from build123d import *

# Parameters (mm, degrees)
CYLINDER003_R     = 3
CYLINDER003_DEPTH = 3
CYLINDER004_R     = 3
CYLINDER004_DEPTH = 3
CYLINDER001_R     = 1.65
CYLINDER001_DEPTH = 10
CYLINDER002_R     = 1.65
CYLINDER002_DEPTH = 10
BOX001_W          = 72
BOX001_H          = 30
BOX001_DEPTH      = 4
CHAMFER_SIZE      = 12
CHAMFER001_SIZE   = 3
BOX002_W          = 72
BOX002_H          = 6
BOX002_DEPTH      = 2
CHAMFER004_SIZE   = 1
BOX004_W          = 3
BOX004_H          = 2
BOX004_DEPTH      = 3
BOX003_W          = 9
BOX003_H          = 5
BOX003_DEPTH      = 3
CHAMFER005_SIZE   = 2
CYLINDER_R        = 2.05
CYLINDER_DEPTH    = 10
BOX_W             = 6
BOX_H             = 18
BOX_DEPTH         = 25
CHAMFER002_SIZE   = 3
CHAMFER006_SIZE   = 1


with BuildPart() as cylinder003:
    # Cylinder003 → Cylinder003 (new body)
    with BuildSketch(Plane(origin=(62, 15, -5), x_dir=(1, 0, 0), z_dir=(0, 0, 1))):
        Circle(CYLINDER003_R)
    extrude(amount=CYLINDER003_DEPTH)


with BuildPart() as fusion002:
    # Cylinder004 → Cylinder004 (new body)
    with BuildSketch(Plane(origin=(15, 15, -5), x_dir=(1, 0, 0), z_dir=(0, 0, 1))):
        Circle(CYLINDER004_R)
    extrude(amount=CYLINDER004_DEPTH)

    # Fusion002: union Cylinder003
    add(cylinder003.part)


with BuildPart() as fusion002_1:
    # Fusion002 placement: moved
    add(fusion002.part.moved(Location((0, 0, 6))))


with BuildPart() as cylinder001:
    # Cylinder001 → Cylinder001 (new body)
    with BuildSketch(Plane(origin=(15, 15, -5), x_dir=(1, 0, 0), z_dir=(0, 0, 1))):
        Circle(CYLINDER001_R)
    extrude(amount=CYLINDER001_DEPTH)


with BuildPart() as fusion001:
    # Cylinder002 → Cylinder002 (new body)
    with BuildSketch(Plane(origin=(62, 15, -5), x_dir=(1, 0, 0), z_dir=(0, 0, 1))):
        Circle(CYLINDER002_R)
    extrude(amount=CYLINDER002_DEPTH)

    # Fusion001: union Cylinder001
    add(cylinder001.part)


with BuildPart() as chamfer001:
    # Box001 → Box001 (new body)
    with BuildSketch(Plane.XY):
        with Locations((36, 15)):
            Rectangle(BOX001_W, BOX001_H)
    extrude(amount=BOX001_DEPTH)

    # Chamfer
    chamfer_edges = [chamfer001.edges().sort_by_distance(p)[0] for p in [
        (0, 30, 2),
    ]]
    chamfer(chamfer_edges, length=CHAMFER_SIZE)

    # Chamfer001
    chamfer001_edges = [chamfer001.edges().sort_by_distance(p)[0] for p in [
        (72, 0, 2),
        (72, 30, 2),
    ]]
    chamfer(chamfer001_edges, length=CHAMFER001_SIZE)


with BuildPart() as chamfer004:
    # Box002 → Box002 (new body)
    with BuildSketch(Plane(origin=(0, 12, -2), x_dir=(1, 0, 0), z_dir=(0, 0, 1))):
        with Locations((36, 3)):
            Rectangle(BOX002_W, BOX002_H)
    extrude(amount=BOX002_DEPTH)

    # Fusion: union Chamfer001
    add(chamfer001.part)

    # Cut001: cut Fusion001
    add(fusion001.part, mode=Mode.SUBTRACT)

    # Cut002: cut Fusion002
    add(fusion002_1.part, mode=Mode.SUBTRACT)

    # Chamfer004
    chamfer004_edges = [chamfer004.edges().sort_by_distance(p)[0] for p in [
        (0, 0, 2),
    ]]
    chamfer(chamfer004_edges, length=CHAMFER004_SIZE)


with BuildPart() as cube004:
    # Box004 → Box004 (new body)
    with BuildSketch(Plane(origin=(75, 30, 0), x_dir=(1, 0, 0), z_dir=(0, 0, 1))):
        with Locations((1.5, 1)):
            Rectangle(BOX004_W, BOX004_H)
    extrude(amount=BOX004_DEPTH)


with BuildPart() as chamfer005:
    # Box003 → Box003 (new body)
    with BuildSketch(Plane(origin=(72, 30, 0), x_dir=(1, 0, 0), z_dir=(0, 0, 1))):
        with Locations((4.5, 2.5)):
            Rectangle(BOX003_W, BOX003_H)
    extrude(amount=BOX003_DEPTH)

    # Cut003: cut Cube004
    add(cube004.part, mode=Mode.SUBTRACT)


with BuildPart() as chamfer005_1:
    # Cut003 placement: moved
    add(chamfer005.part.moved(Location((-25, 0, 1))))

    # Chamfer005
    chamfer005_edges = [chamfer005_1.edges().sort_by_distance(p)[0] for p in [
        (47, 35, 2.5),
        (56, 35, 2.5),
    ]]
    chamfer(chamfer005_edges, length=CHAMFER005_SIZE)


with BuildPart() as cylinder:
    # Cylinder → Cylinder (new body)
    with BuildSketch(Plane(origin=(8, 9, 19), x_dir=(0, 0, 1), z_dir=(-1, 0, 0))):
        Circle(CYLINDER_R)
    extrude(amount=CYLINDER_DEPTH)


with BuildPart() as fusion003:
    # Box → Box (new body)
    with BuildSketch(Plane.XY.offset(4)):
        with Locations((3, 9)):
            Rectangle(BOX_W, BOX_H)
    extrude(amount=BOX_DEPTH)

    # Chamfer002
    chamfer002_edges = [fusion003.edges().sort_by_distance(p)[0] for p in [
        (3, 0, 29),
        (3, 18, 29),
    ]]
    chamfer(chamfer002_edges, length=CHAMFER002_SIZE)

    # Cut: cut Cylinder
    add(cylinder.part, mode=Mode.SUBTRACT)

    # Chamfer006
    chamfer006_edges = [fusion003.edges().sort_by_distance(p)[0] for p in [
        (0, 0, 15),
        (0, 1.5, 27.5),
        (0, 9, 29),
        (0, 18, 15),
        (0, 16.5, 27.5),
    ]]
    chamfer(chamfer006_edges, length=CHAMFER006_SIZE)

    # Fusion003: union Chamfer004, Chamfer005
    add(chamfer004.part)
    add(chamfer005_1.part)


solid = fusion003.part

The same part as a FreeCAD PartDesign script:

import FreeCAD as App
import Part
import Sketcher

V = App.Vector


def edges_at(feature, points):
    """Names of the edges that pass closest to the given points."""
    edges = feature.Shape.Edges
    near = lambda p: min(range(len(edges)), key=lambda i: edges[i].distToShape(Part.Vertex(*p))[0])
    return sorted({f"Edge{near(p) + 1}" for p in points})


def add_polygon(sketch, points):
    """Adds a closed chain of lines whose ends are joined by coincident constraints."""
    first, n = sketch.GeometryCount, len(points)
    for a, b in zip(points, points[1:] + points[:1]):
        sketch.addGeometry(Part.LineSegment(App.Vector(*a, 0), App.Vector(*b, 0)), False)
    for i in range(n):
        sketch.addConstraint(Sketcher.Constraint("Coincident", first + i, 2, first + (i + 1) % n, 1))

doc = App.newDocument("Part")
body = doc.addObject("PartDesign::Body", "Body")

sketch1 = body.newObject("Sketcher::SketchObject", "Sketch")
sketch1.AttachmentSupport = (doc.getObject("XY_Plane"), [""])
sketch1.MapMode = "FlatFace"
sketch1.AttachmentOffset = App.Placement(V(0, 0, -5), App.Rotation())
sketch1.addGeometry(Part.Circle(V(62, 15, 0), V(0, 0, 1), 3), False)
sketch1.addConstraint([
    Sketcher.Constraint("Diameter", 0, 6.0),
    Sketcher.Constraint("DistanceX", -1, 1, 0, 3, 62.0),
    Sketcher.Constraint("DistanceY", -1, 1, 0, 3, 15.0),
])
pad1 = body.newObject("PartDesign::Pad", "Pad")
pad1.Profile = sketch1
pad1.Length = 3
body2 = doc.addObject("PartDesign::Body", "Body001")
body2.AllowCompound = True

sketch2 = body2.newObject("Sketcher::SketchObject", "Sketch001")
sketch2.AttachmentSupport = (doc.getObject("XY_Plane001"), [""])
sketch2.MapMode = "FlatFace"
sketch2.AttachmentOffset = App.Placement(V(0, 0, -5), App.Rotation())
sketch2.addGeometry(Part.Circle(V(15, 15, 0), V(0, 0, 1), 3), False)
sketch2.addConstraint([
    Sketcher.Constraint("Diameter", 0, 6.0),
    Sketcher.Constraint("DistanceX", -1, 1, 0, 3, 15.0),
    Sketcher.Constraint("DistanceY", -1, 1, 0, 3, 15.0),
])
pad2 = body2.newObject("PartDesign::Pad", "Pad001")
pad2.Profile = sketch2
pad2.Length = 3
doc.recompute()

boolean = body2.newObject("PartDesign::Boolean", "Boolean")
boolean.Type = "Fuse"
boolean.addObjects([body])
body3 = doc.addObject("PartDesign::Body", "Body002")
body3.AllowCompound = True
doc.recompute()

body2.Placement = App.Placement(V(0, 0, 6), App.Rotation(V(0, 0, 1), 0))
boolean2 = body3.newObject("PartDesign::Boolean", "Boolean001")
boolean2.Type = "Fuse"
boolean2.addObjects([body2])
body4 = doc.addObject("PartDesign::Body", "Body003")

sketch3 = body4.newObject("Sketcher::SketchObject", "Sketch002")
sketch3.AttachmentSupport = (doc.getObject("XY_Plane003"), [""])
sketch3.MapMode = "FlatFace"
sketch3.AttachmentOffset = App.Placement(V(0, 0, -5), App.Rotation())
sketch3.addGeometry(Part.Circle(V(15, 15, 0), V(0, 0, 1), 1.6), False)
sketch3.addConstraint([
    Sketcher.Constraint("Diameter", 0, 3.3),
    Sketcher.Constraint("DistanceX", -1, 1, 0, 3, 15.0),
    Sketcher.Constraint("DistanceY", -1, 1, 0, 3, 15.0),
])
pad3 = body4.newObject("PartDesign::Pad", "Pad002")
pad3.Profile = sketch3
pad3.Length = 10
body5 = doc.addObject("PartDesign::Body", "Body004")
body5.AllowCompound = True

sketch4 = body5.newObject("Sketcher::SketchObject", "Sketch003")
sketch4.AttachmentSupport = (doc.getObject("XY_Plane004"), [""])
sketch4.MapMode = "FlatFace"
sketch4.AttachmentOffset = App.Placement(V(0, 0, -5), App.Rotation())
sketch4.addGeometry(Part.Circle(V(62, 15, 0), V(0, 0, 1), 1.6), False)
sketch4.addConstraint([
    Sketcher.Constraint("Diameter", 0, 3.3),
    Sketcher.Constraint("DistanceX", -1, 1, 0, 3, 62.0),
    Sketcher.Constraint("DistanceY", -1, 1, 0, 3, 15.0),
])
pad4 = body5.newObject("PartDesign::Pad", "Pad003")
pad4.Profile = sketch4
pad4.Length = 10
doc.recompute()

boolean3 = body5.newObject("PartDesign::Boolean", "Boolean002")
boolean3.Type = "Fuse"
boolean3.addObjects([body4])
body6 = doc.addObject("PartDesign::Body", "Body005")

sketch5 = body6.newObject("Sketcher::SketchObject", "Sketch004")
sketch5.AttachmentSupport = (doc.getObject("XY_Plane005"), [""])
sketch5.MapMode = "FlatFace"
add_polygon(sketch5, [(0, 30), (0, 0), (72, 0), (72, 30)])
sketch5.addConstraint([
    Sketcher.Constraint("Vertical", 0),
    Sketcher.Constraint("Horizontal", 1),
    Sketcher.Constraint("Vertical", 2),
    Sketcher.Constraint("Horizontal", 3),
    Sketcher.Constraint("Coincident", 0, 2, -1, 1),
    Sketcher.Constraint("DistanceX", 1, 1, 1, 2, 72.0),
    Sketcher.Constraint("DistanceY", 0, 2, 0, 1, 30.0),
])
pad5 = body6.newObject("PartDesign::Pad", "Pad004")
pad5.Profile = sketch5
pad5.Length = 4
doc.recompute()

chamfer = body6.newObject("PartDesign::Chamfer", "Chamfer")
chamfer.Base = (pad5, edges_at(pad5, [(0, 30, 2)]))
chamfer.Size = 12
doc.recompute()

chamfer2 = body6.newObject("PartDesign::Chamfer", "Chamfer001")
chamfer2.Base = (chamfer, edges_at(chamfer, [(72, 0, 2), (72, 30, 2)]))
chamfer2.Size = 3
body7 = doc.addObject("PartDesign::Body", "Body006")

sketch6 = body7.newObject("Sketcher::SketchObject", "Sketch005")
sketch6.AttachmentSupport = (doc.getObject("XY_Plane006"), [""])
sketch6.MapMode = "FlatFace"
sketch6.AttachmentOffset = App.Placement(V(0, 0, -2), App.Rotation())
add_polygon(sketch6, [(0, 18), (0, 12), (72, 12), (72, 18)])
sketch6.addConstraint([
    Sketcher.Constraint("Vertical", 0),
    Sketcher.Constraint("Horizontal", 1),
    Sketcher.Constraint("Vertical", 2),
    Sketcher.Constraint("Horizontal", 3),
    Sketcher.Constraint("PointOnObject", 0, 2, -2),
    Sketcher.Constraint("DistanceX", 1, 1, 1, 2, 72.0),
    Sketcher.Constraint("DistanceY", 0, 2, 0, 1, 6.0),
    Sketcher.Constraint("DistanceY", -1, 1, 0, 2, 12.0),
])
pad6 = body7.newObject("PartDesign::Pad", "Pad005")
pad6.Profile = sketch6
pad6.Length = 2
doc.recompute()

boolean4 = body7.newObject("PartDesign::Boolean", "Boolean003")
boolean4.Type = "Fuse"
boolean4.addObjects([body6])
doc.recompute()

boolean5 = body7.newObject("PartDesign::Boolean", "Boolean004")
boolean5.Type = "Cut"
boolean5.addObjects([body5])
doc.recompute()

boolean6 = body7.newObject("PartDesign::Boolean", "Boolean005")
boolean6.Type = "Cut"
boolean6.addObjects([body3])
doc.recompute()

chamfer3 = body7.newObject("PartDesign::Chamfer", "Chamfer002")
chamfer3.Base = (boolean6, edges_at(boolean6, [(0, 0, 2)]))
chamfer3.Size = 1
body8 = doc.addObject("PartDesign::Body", "Body007")

sketch7 = body8.newObject("Sketcher::SketchObject", "Sketch006")
sketch7.AttachmentSupport = (doc.getObject("XY_Plane007"), [""])
sketch7.MapMode = "FlatFace"
add_polygon(sketch7, [(75, 32), (75, 30), (78, 30), (78, 32)])
sketch7.addConstraint([
    Sketcher.Constraint("Vertical", 0),
    Sketcher.Constraint("Horizontal", 1),
    Sketcher.Constraint("Vertical", 2),
    Sketcher.Constraint("Horizontal", 3),
    Sketcher.Constraint("DistanceX", 1, 1, 1, 2, 3.0),
    Sketcher.Constraint("DistanceY", 0, 2, 0, 1, 2.0),
    Sketcher.Constraint("DistanceX", -1, 1, 0, 2, 75.0),
    Sketcher.Constraint("DistanceY", -1, 1, 0, 2, 30.0),
])
pad7 = body8.newObject("PartDesign::Pad", "Pad006")
pad7.Profile = sketch7
pad7.Length = 3
body9 = doc.addObject("PartDesign::Body", "Body008")

sketch8 = body9.newObject("Sketcher::SketchObject", "Sketch007")
sketch8.AttachmentSupport = (doc.getObject("XY_Plane008"), [""])
sketch8.MapMode = "FlatFace"
add_polygon(sketch8, [(72, 35), (72, 30), (81, 30), (81, 35)])
sketch8.addConstraint([
    Sketcher.Constraint("Vertical", 0),
    Sketcher.Constraint("Horizontal", 1),
    Sketcher.Constraint("Vertical", 2),
    Sketcher.Constraint("Horizontal", 3),
    Sketcher.Constraint("DistanceX", 1, 1, 1, 2, 9.0),
    Sketcher.Constraint("DistanceY", 0, 2, 0, 1, 5.0),
    Sketcher.Constraint("DistanceX", -1, 1, 0, 2, 72.0),
    Sketcher.Constraint("DistanceY", -1, 1, 0, 2, 30.0),
])
pad8 = body9.newObject("PartDesign::Pad", "Pad007")
pad8.Profile = sketch8
pad8.Length = 3
doc.recompute()

boolean7 = body9.newObject("PartDesign::Boolean", "Boolean006")
boolean7.Type = "Cut"
boolean7.addObjects([body8])
body10 = doc.addObject("PartDesign::Body", "Body009")
doc.recompute()

body9.Placement = App.Placement(V(-25, 0, 1), App.Rotation(V(0, 0, 1), 0))
boolean8 = body10.newObject("PartDesign::Boolean", "Boolean007")
boolean8.Type = "Fuse"
boolean8.addObjects([body9])
doc.recompute()

chamfer4 = body10.newObject("PartDesign::Chamfer", "Chamfer003")
chamfer4.Base = (boolean8, edges_at(boolean8, [(47, 35, 2.5), (56, 35, 2.5)]))
chamfer4.Size = 2
body11 = doc.addObject("PartDesign::Body", "Body010")

sketch9 = body11.newObject("Sketcher::SketchObject", "Sketch008")
sketch9.AttachmentSupport = (doc.getObject("YZ_Plane010"), [""])
sketch9.MapMode = "FlatFace"
sketch9.AttachmentOffset = App.Placement(V(0, 0, 8), App.Rotation())
sketch9.addGeometry(Part.Circle(V(9, 19, 0), V(0, 0, 1), 2), False)
sketch9.addConstraint([
    Sketcher.Constraint("Diameter", 0, 4.1),
    Sketcher.Constraint("DistanceX", -1, 1, 0, 3, 9.0),
    Sketcher.Constraint("DistanceY", -1, 1, 0, 3, 19.0),
])
pad9 = body11.newObject("PartDesign::Pad", "Pad008")
pad9.Profile = sketch9
pad9.Length = 10
pad9.Reversed = True
body12 = doc.addObject("PartDesign::Body", "Body011")

sketch10 = body12.newObject("Sketcher::SketchObject", "Sketch009")
sketch10.AttachmentSupport = (doc.getObject("XY_Plane011"), [""])
sketch10.MapMode = "FlatFace"
sketch10.AttachmentOffset = App.Placement(V(0, 0, 4), App.Rotation())
add_polygon(sketch10, [(0, 18), (0, 0), (6, 0), (6, 18)])
sketch10.addConstraint([
    Sketcher.Constraint("Vertical", 0),
    Sketcher.Constraint("Horizontal", 1),
    Sketcher.Constraint("Vertical", 2),
    Sketcher.Constraint("Horizontal", 3),
    Sketcher.Constraint("Coincident", 0, 2, -1, 1),
    Sketcher.Constraint("DistanceX", 1, 1, 1, 2, 6.0),
    Sketcher.Constraint("DistanceY", 0, 2, 0, 1, 18.0),
])
pad10 = body12.newObject("PartDesign::Pad", "Pad009")
pad10.Profile = sketch10
pad10.Length = 25
doc.recompute()

chamfer5 = body12.newObject("PartDesign::Chamfer", "Chamfer004")
chamfer5.Base = (pad10, edges_at(pad10, [(3, 0, 29), (3, 18, 29)]))
chamfer5.Size = 3
doc.recompute()

boolean9 = body12.newObject("PartDesign::Boolean", "Boolean008")
boolean9.Type = "Cut"
boolean9.addObjects([body11])
doc.recompute()

chamfer6 = body12.newObject("PartDesign::Chamfer", "Chamfer005")
chamfer6.Base = (boolean9, edges_at(boolean9, [
    (0, 0, 15),
    (0, 1.5, 27.5),
    (0, 9, 29),
    (0, 18, 15),
    (0, 16.5, 27.5),
]))
chamfer6.Size = 1
doc.recompute()

boolean10 = body12.newObject("PartDesign::Boolean", "Boolean009")
boolean10.Type = "Fuse"
boolean10.addObjects([body7])
doc.recompute()

boolean11 = body12.newObject("PartDesign::Boolean", "Boolean010")
boolean11.Type = "Fuse"
boolean11.addObjects([body10])

doc.recompute()
